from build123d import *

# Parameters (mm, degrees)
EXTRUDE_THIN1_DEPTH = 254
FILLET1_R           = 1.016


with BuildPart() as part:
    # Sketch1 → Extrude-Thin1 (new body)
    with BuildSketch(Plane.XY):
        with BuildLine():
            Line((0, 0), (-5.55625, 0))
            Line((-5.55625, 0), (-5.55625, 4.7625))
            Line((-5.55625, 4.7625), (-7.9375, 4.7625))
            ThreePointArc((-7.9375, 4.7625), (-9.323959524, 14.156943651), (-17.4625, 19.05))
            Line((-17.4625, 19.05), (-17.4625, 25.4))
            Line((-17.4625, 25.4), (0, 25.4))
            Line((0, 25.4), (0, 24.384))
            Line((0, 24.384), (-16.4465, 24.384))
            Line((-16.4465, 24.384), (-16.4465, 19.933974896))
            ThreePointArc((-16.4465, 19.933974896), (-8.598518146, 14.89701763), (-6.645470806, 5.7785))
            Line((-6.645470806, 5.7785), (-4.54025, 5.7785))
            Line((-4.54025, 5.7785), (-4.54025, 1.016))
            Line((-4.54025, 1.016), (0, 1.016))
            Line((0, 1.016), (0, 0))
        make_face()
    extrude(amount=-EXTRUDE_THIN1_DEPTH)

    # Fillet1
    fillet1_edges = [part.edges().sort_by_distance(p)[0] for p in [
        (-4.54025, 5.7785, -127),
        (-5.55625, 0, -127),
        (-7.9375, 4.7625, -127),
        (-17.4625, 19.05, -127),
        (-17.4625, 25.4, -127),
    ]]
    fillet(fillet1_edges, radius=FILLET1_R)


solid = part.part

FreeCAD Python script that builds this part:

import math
import FreeCAD as App
import Part
import Sketcher
from FreeCAD import Vector
Q = App.Units.Quantity


def edges_at(feature, points):
    """Names of the edges that pass closest to the given points."""
    edges = feature.Shape.Edges
    near = lambda p: min(range(len(edges)), key=lambda i: edges[i].distToShape(Part.Vertex(*p))[0])
    return sorted({f"Edge{near(p) + 1}" for p in points})

doc = App.newDocument("Part")
body = doc.addObject("PartDesign::Body", "Body")

# Sketch on XY plane
sketch1 = body.newObject("Sketcher::SketchObject", "Sketch")
sketch1.AttachmentSupport = (doc.getObject("XY_Plane"), [""])
sketch1.MapMode = "FlatFace"
sketch1.addGeometry(Part.LineSegment(Vector(-5.6, 0, 0), Vector(0, 0, 0)), False)
sketch1.addGeometry(Part.LineSegment(Vector(0, 0, 0), Vector(0, 1, 0)), False)
sketch1.addGeometry(Part.LineSegment(Vector(0, 1, 0), Vector(-4.5, 1, 0)), False)
sketch1.addGeometry(Part.LineSegment(Vector(-4.5, 1, 0), Vector(-4.5, 5.8, 0)), False)
sketch1.addGeometry(Part.LineSegment(Vector(-4.5, 5.8, 0), Vector(-6.6, 5.8, 0)), False)
sketch1.addGeometry(Part.ArcOfCircle(Part.Circle(Vector(-18.6, 8, 0), Vector(0, 0, 1), 12.1), math.radians(-11), math.radians(80)), False)
sketch1.addGeometry(Part.LineSegment(Vector(-16.4, 19.9, 0), Vector(-16.4, 24.4, 0)), False)
sketch1.addGeometry(Part.LineSegment(Vector(-16.4, 24.4, 0), Vector(0, 24.4, 0)), False)
sketch1.addGeometry(Part.LineSegment(Vector(0, 24.4, 0), Vector(0, 25.4, 0)), False)
sketch1.addGeometry(Part.LineSegment(Vector(0, 25.4, 0), Vector(-17.5, 25.4, 0)), False)
sketch1.addGeometry(Part.LineSegment(Vector(-17.5, 25.4, 0), Vector(-17.5, 19.1, 0)), False)
sketch1.addGeometry(Part.ArcOfCircle(Part.Circle(Vector(-18.6, 8, 0), Vector(0, 0, 1), 11.1), math.radians(-17), math.radians(84)), False)
sketch1.addGeometry(Part.LineSegment(Vector(-7.9, 4.8, 0), Vector(-5.6, 4.8, 0)), False)
sketch1.addGeometry(Part.LineSegment(Vector(-5.6, 4.8, 0), Vector(-5.6, 0, 0)), False)
sketch1.addConstraint(Sketcher.Constraint("Coincident", 0, 2, 1, 1))
sketch1.addConstraint(Sketcher.Constraint("Coincident", 1, 2, 2, 1))
sketch1.addConstraint(Sketcher.Constraint("Coincident", 2, 2, 3, 1))
sketch1.addConstraint(Sketcher.Constraint("Coincident", 3, 2, 4, 1))
sketch1.addConstraint(Sketcher.Constraint("Coincident", 4, 2, 5, 1))
sketch1.addConstraint(Sketcher.Constraint("Coincident", 5, 2, 6, 1))
sketch1.addConstraint(Sketcher.Constraint("Coincident", 6, 2, 7, 1))
sketch1.addConstraint(Sketcher.Constraint("Coincident", 7, 2, 8, 1))
sketch1.addConstraint(Sketcher.Constraint("Coincident", 8, 2, 9, 1))
sketch1.addConstraint(Sketcher.Constraint("Coincident", 9, 2, 10, 1))
sketch1.addConstraint(Sketcher.Constraint("Coincident", 10, 2, 11, 2))
sketch1.addConstraint(Sketcher.Constraint("Coincident", 11, 1, 12, 1))
sketch1.addConstraint(Sketcher.Constraint("Coincident", 12, 2, 13, 1))
sketch1.addConstraint(Sketcher.Constraint("Coincident", 13, 2, 0, 1))
sketch1.addConstraint(Sketcher.Constraint("Horizontal", 0))
sketch1.addConstraint(Sketcher.Constraint("Vertical", 1))
sketch1.addConstraint(Sketcher.Constraint("Horizontal", 2))
sketch1.addConstraint(Sketcher.Constraint("Vertical", 3))
sketch1.addConstraint(Sketcher.Constraint("Horizontal", 4))
sketch1.addConstraint(Sketcher.Constraint("Vertical", 6))
sketch1.addConstraint(Sketcher.Constraint("Horizontal", 7))
sketch1.addConstraint(Sketcher.Constraint("Vertical", 8))
sketch1.addConstraint(Sketcher.Constraint("Horizontal", 9))
sketch1.addConstraint(Sketcher.Constraint("Vertical", 10))
sketch1.addConstraint(Sketcher.Constraint("Horizontal", 12))
sketch1.addConstraint(Sketcher.Constraint("Vertical", 13))
sketch1.addConstraint(Sketcher.Constraint("Coincident", 0, 2, -1, 1))
sketch1.addConstraint(Sketcher.Constraint("Coincident", 11, 3, 5, 3))
sketch1.addConstraint(Sketcher.Constraint("PointOnObject", 7, 2, -2))
sketch1.addConstraint(Sketcher.Constraint("Equal", 1, 8))
sketch1.addConstraint(Sketcher.Constraint("Equal", 3, 13))
sketch1.addConstraint(Sketcher.Constraint("DistanceY", -1, 1, 8, 2, Q("1 in")))
sketch1.addConstraint(Sketcher.Constraint("Radius", 11, Q("0.4375 in")))
sketch1.addConstraint(Sketcher.Constraint("DistanceY", 1, 1, 1, 2, Q("0.04 in")))
sketch1.addConstraint(Sketcher.Constraint("DistanceY", 10, 2, 10, 1, Q("0.25 in")))
sketch1.addConstraint(Sketcher.Constraint("Radius", 5, Q("0.4775 in")))
sketch1.addConstraint(Sketcher.Constraint("DistanceX", 0, 1, 0, 2, Q("0.21875 in")))
sketch1.addConstraint(Sketcher.Constraint("DistanceX", 9, 2, 9, 1, Q("0.6875 in")))
sketch1.addConstraint(Sketcher.Constraint("DistanceX", 12, 1, 12, 2, Q("0.09375 in")))
sketch1.addConstraint(Sketcher.Constraint("DistanceY", 3, 1, 3, 2, Q("0.1875 in")))
sketch1.addConstraint(Sketcher.Constraint("DistanceX", 9, 2, 6, 2, Q("0.04 in")))
sketch1.addConstraint(Sketcher.Constraint("DistanceX", 12, 2, 3, 2, Q("0.04 in")))
pad1 = body.newObject("PartDesign::Pad", "Pad")
pad1.Profile = sketch1
pad1.Length = Q("10 in")
pad1.Reversed = True
doc.recompute()

fillet = body.newObject("PartDesign::Fillet", "Fillet")
fillet.Base = (pad1, edges_at(pad1, [
    (-4.54, 5.779, -127),
    (-5.556, 0, -127),
    (-7.938, 4.763, -127),
    (-17.462, 19.05, -127),
    (-17.462, 25.4, -127),
]))
fillet.Radius = Q("0.04 in")

doc.recompute()
